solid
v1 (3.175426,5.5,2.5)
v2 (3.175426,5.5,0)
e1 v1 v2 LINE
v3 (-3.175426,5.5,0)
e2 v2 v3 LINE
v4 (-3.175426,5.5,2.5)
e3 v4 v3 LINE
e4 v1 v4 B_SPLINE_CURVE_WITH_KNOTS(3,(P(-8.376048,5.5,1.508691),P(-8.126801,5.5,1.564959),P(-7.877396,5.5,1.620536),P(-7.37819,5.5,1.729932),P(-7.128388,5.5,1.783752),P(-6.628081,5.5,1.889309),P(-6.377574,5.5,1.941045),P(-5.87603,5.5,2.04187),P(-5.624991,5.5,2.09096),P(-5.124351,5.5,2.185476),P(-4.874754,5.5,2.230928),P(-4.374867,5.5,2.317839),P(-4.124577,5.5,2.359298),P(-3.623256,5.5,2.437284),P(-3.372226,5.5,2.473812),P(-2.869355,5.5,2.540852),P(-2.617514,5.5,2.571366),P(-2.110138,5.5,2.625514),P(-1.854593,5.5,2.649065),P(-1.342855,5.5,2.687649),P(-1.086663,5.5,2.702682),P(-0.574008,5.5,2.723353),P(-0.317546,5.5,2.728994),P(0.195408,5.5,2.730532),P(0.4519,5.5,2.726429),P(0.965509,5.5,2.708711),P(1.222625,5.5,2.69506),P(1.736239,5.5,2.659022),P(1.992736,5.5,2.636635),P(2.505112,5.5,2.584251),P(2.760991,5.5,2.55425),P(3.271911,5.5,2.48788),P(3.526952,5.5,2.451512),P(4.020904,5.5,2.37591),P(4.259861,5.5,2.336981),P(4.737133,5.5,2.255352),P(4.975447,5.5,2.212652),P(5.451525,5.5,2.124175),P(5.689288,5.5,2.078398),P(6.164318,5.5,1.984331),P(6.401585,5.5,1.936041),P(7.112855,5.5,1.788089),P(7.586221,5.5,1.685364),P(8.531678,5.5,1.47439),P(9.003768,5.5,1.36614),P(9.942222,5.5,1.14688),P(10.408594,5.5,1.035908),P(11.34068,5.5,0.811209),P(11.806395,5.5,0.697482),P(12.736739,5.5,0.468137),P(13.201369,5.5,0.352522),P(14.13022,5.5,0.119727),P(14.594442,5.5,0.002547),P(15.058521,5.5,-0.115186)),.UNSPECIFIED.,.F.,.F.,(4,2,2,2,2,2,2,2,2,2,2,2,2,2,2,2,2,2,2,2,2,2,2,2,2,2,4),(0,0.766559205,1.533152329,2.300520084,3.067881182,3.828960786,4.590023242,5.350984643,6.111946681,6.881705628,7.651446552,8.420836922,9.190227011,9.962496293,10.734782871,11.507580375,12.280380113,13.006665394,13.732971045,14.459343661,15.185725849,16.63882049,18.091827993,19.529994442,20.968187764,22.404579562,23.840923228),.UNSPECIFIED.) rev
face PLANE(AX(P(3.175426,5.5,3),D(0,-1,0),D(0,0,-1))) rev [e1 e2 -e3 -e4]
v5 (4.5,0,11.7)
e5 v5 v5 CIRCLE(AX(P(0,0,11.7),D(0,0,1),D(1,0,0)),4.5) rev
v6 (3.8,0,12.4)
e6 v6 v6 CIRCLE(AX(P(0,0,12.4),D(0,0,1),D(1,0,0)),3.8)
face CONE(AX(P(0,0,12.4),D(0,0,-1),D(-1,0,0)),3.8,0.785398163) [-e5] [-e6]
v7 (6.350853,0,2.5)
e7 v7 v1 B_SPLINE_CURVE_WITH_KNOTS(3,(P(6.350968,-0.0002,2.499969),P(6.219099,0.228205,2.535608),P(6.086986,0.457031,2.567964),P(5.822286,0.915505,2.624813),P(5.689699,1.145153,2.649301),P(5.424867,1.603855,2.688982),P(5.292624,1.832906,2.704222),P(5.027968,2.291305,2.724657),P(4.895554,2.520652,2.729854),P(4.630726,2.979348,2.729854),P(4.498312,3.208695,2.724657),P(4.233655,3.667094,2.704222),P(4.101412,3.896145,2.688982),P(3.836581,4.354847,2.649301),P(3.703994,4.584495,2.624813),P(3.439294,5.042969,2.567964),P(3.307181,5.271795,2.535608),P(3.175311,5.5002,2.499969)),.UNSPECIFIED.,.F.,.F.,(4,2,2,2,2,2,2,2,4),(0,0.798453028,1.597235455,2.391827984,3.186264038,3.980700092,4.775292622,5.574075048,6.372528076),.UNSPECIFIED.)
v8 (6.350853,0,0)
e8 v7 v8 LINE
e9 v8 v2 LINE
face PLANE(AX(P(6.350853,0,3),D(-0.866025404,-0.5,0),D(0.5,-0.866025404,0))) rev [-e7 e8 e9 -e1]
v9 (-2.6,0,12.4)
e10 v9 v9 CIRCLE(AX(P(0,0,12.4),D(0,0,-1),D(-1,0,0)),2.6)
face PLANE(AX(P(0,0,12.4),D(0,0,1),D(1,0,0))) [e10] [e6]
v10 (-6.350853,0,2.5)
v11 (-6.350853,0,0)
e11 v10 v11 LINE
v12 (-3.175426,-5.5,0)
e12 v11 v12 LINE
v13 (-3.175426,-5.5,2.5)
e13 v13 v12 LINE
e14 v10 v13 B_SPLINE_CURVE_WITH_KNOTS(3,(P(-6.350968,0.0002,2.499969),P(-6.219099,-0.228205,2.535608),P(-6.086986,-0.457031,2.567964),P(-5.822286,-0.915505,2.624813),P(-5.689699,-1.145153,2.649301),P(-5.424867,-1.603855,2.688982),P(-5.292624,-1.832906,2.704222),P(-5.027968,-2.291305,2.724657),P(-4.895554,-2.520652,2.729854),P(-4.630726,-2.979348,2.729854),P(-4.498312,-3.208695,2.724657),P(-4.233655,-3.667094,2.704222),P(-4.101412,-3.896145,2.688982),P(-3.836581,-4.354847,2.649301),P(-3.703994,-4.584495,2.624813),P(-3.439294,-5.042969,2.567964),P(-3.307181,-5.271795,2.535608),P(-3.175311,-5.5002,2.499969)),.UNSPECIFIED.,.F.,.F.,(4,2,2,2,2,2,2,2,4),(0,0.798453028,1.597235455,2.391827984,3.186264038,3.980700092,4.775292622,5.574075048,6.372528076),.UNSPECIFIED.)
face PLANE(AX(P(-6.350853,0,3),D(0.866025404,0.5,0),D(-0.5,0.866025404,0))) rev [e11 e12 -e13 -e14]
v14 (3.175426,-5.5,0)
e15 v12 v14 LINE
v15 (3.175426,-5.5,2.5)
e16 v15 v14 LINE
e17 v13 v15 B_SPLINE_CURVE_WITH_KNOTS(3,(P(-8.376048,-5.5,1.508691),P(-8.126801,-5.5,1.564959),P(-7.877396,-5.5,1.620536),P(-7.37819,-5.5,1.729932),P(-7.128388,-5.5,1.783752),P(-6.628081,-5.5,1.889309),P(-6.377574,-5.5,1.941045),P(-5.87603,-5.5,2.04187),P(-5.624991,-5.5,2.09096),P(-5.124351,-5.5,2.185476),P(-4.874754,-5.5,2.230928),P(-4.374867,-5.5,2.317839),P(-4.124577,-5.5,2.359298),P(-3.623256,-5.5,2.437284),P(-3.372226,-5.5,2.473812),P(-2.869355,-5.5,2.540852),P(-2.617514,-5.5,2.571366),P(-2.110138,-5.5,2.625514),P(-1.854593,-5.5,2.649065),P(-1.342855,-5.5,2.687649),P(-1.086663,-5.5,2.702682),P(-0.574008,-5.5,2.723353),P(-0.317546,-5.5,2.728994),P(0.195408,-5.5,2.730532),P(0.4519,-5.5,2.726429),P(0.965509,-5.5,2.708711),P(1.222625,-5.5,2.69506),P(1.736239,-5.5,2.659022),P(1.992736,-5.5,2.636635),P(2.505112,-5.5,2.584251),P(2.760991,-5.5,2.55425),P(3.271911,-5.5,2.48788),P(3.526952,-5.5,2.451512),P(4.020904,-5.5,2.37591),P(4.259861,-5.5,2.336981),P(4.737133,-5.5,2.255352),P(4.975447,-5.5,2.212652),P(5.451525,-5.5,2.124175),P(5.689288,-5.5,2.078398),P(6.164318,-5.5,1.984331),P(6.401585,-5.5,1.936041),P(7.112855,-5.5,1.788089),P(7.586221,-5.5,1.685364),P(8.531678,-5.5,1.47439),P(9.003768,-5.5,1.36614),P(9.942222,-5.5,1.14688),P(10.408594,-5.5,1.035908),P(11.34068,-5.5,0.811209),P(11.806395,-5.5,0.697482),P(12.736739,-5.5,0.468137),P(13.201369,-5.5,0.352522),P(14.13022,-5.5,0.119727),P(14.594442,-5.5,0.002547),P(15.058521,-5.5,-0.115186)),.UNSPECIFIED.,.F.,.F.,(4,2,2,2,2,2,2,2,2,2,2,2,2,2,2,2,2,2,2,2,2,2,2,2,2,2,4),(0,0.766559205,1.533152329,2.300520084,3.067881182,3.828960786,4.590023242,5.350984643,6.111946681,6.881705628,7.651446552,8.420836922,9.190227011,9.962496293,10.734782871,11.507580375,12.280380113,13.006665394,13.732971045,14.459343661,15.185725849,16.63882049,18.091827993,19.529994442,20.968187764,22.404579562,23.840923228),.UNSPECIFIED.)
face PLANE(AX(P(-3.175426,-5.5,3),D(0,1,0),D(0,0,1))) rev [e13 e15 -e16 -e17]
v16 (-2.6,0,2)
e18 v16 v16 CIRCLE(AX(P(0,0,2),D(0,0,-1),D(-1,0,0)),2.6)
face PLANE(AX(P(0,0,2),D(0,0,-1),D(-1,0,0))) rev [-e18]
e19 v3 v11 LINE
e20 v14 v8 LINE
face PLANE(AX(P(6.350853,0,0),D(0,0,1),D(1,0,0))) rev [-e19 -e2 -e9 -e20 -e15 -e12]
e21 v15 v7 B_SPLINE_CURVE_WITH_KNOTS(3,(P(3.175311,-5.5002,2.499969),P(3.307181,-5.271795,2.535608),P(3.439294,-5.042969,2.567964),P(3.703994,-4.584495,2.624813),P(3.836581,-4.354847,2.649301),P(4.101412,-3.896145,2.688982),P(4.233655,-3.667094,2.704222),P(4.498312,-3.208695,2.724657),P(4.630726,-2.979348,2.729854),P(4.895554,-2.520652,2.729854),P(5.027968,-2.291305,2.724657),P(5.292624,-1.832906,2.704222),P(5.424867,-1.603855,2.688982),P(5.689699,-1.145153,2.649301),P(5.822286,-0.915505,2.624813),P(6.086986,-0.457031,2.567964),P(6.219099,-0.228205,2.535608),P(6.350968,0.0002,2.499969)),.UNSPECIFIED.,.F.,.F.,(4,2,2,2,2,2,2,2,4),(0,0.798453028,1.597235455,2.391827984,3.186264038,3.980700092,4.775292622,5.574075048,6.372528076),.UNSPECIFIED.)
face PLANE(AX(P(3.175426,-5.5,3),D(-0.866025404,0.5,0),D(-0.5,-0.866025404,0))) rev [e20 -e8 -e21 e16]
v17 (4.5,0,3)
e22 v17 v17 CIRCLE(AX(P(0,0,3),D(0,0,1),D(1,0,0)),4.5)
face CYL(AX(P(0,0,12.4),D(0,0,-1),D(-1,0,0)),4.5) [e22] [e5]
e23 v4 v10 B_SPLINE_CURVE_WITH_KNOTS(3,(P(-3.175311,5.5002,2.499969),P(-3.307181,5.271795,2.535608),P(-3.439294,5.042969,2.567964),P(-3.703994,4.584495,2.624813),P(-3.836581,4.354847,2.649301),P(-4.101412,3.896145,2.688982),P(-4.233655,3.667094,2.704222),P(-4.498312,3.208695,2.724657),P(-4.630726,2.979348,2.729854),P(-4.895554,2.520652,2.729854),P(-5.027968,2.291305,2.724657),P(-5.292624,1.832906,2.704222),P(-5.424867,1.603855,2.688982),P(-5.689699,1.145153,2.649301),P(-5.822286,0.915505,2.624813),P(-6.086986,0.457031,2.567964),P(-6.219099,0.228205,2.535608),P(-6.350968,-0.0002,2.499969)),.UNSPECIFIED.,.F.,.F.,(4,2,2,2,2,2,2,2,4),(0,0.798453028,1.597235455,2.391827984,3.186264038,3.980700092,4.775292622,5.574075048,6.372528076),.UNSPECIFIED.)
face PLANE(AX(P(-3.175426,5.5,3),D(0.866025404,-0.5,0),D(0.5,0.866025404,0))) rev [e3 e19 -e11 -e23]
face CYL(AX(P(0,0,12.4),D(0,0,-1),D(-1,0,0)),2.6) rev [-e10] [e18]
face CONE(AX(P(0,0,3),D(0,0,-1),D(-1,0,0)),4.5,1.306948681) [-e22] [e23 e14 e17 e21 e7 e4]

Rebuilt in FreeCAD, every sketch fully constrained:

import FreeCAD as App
import Part
import Sketcher

V = App.Vector
Q = App.Units.Quantity


def edges_at(feature, points):
    """Names of the edges that pass closest to the given points."""
    edges = feature.Shape.Edges
    near = lambda p: min(range(len(edges)), key=lambda i: edges[i].distToShape(Part.Vertex(*p))[0])
    return sorted({f"Edge{near(p) + 1}" for p in points})

doc = App.newDocument("Part")
body = doc.addObject("PartDesign::Body", "Body")

sketch1 = doc.addObject("Sketcher::SketchObject", "Sketch")
body.addObject(sketch1)
sketch1.AttachmentSupport = (doc.XY_Plane, [""])
sketch1.MapMode = "FlatFace"
sketch1.addGeometry([
    Part.LineSegment(V(6.350853, 0, 0), V(3.175426, 5.5, 0)),
    Part.LineSegment(V(3.175426, 5.5, 0), V(-3.175426, 5.5, 0)),
    Part.LineSegment(V(-3.175426, 5.5, 0), V(-6.350853, 0, 0)),
    Part.LineSegment(V(-6.350853, 0, 0), V(-3.175426, -5.5, 0)),
    Part.LineSegment(V(-3.175426, -5.5, 0), V(3.175426, -5.5, 0)),
    Part.LineSegment(V(3.175426, -5.5, 0), V(6.350853, 0, 0)),
], False)
sketch1.addConstraint([
    Sketcher.Constraint("Coincident", 0, 2, 1, 1),
    Sketcher.Constraint("Coincident", 1, 2, 2, 1),
    Sketcher.Constraint("Coincident", 2, 2, 3, 1),
    Sketcher.Constraint("Coincident", 3, 2, 4, 1),
    Sketcher.Constraint("Coincident", 4, 2, 5, 1),
    Sketcher.Constraint("Coincident", 5, 2, 0, 1),
    Sketcher.Constraint("Horizontal", 1),
    Sketcher.Constraint("Horizontal", 4),
    Sketcher.Constraint("Symmetric", 0, 2, 3, 2, -1, 1),
    Sketcher.Constraint("Symmetric", 2, 2, 5, 2, -1, 1),
    Sketcher.Constraint("PointOnObject", 2, 2, -1),
    Sketcher.Constraint("Parallel", 2, 5),
    Sketcher.Constraint("Vertical", 1, 2, 3, 2),
    Sketcher.Constraint("Angle", 0, Q("120 deg")),
    Sketcher.Constraint("DistanceY", 3, 2, 1, 2, 11.0),
    Sketcher.Constraint("DistanceX", 1, 2, 1, 1, 6.350853),
])
pad1 = doc.addObject("PartDesign::Pad", "Pad")
body.addObject(pad1)
pad1.Profile = sketch1
pad1.Length = 3

sketch2 = doc.addObject("Sketcher::SketchObject", "Sketch001")
body.addObject(sketch2)
sketch2.AttachmentSupport = (doc.XY_Plane, [""])
sketch2.MapMode = "FlatFace"
sketch2.AttachmentOffset = App.Placement(V(0, 0, 3), App.Rotation())
sketch2.addGeometry(Part.Circle(V(0, 0, 0), V(0, 0, 1), 4.5), False)
sketch2.addConstraint([
    Sketcher.Constraint("Coincident", 0, 3, -1, 1),
    Sketcher.Constraint("Diameter", 0, 9.0),
])
pad2 = doc.addObject("PartDesign::Pad", "Pad001")
body.addObject(pad2)
pad2.Profile = sketch2
pad2.Length = 9.4

sketch3 = doc.addObject("Sketcher::SketchObject", "Sketch002")
body.addObject(sketch3)
sketch3.AttachmentSupport = (doc.XY_Plane, [""])
sketch3.MapMode = "FlatFace"
sketch3.AttachmentOffset = App.Placement(V(0, 0, 2), App.Rotation())
sketch3.addGeometry(Part.Circle(V(0, 0, 0), V(0, 0, 1), 2.6), False)
sketch3.addConstraint([
    Sketcher.Constraint("Coincident", 0, 3, -1, 1),
    Sketcher.Constraint("Diameter", 0, 5.2),
])
pocket1 = doc.addObject("PartDesign::Pocket", "Pocket")
body.addObject(pocket1)
pocket1.Profile = sketch3
pocket1.Type = "ThroughAll"
pocket1.Reversed = True

sketch4 = doc.addObject("Sketcher::SketchObject", "Sketch003")
body.addObject(sketch4)
sketch4.AttachmentSupport = (doc.XZ_Plane, [""])
sketch4.MapMode = "FlatFace"
sketch4.addGeometry([
    Part.LineSegment(V(-6.350853, 3, 0), V(-4.5, 3, 0)),
    Part.LineSegment(V(-4.5, 3, 0), V(-6.350853, 2.5, 0)),
    Part.LineSegment(V(-6.350853, 2.5, 0), V(-6.350853, 3, 0)),
], False)
sketch4.addConstraint([
    Sketcher.Constraint("Coincident", 0, 2, 1, 1),
    Sketcher.Constraint("Coincident", 1, 2, 2, 1),
    Sketcher.Constraint("Coincident", 2, 2, 0, 1),
    Sketcher.Constraint("Horizontal", 0),
    Sketcher.Constraint("Vertical", 2),
    Sketcher.Constraint("DistanceY", 2, 1, 2, 2, 0.5),
    Sketcher.Constraint("DistanceY", -1, 1, 0, 2, 3.0),
    Sketcher.Constraint("DistanceX", 0, 2, -1, 1, 4.5),
    Sketcher.Constraint("Distance", 1, 1.9172),
])
groove = doc.addObject("PartDesign::Groove", "Groove")
body.addObject(groove)
groove.Profile = sketch4
groove.ReferenceAxis = (sketch4, ["V_Axis"])
groove.Angle = 360
doc.recompute()

chamfer = doc.addObject("PartDesign::Chamfer", "Chamfer")
body.addObject(chamfer)
chamfer.Base = (groove, edges_at(groove, [(-4.5, 0, 12.4)]))
chamfer.Size = 0.7

doc.recompute()
